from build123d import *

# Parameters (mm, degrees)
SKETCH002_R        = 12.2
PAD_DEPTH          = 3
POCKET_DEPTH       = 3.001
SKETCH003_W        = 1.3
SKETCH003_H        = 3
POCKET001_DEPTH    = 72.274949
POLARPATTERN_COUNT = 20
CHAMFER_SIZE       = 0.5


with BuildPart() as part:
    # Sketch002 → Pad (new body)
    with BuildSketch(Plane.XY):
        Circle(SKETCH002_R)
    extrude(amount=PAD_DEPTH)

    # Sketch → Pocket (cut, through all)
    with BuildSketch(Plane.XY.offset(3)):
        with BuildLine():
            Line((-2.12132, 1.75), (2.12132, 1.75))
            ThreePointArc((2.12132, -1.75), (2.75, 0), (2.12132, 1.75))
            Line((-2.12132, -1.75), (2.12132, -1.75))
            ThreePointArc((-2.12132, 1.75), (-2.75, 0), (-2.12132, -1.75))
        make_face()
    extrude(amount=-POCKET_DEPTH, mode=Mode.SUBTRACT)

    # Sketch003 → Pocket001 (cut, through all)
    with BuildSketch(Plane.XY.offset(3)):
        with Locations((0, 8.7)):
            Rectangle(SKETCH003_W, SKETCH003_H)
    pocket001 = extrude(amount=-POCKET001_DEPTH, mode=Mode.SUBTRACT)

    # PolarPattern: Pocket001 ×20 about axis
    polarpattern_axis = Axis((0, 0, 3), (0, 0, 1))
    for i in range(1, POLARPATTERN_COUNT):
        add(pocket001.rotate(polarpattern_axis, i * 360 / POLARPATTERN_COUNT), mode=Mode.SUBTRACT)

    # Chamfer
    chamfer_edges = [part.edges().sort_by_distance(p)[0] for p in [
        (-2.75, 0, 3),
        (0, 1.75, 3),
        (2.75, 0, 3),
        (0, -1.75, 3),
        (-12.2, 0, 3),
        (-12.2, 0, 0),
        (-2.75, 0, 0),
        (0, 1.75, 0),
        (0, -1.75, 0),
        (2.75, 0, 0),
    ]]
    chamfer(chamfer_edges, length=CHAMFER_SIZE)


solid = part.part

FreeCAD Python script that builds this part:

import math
import FreeCAD as App
import Part
import Sketcher

V = App.Vector


def edges_at(feature, points):
    """Names of the edges that pass closest to the given points."""
    edges = feature.Shape.Edges
    near = lambda p: min(range(len(edges)), key=lambda i: edges[i].distToShape(Part.Vertex(*p))[0])
    return sorted({f"Edge{near(p) + 1}" for p in points})


def add_polygon(sketch, points):
    """Adds a closed chain of lines whose ends are joined by coincident constraints."""
    first, n = sketch.GeometryCount, len(points)
    for a, b in zip(points, points[1:] + points[:1]):
        sketch.addGeometry(Part.LineSegment(App.Vector(*a, 0), App.Vector(*b, 0)), False)
    for i in range(n):
        sketch.addConstraint(Sketcher.Constraint("Coincident", first + i, 2, first + (i + 1) % n, 1))

doc = App.newDocument("Part")
body = doc.addObject("PartDesign::Body", "Body")

# Sketch on XY plane
sketch1 = doc.addObject("Sketcher::SketchObject", "Sketch")
body.addObject(sketch1)
sketch1.AttachmentSupport = (doc.XY_Plane, [""])
sketch1.MapMode = "FlatFace"
sketch1.addGeometry(Part.Circle(V(0, 0, 0), V(0, 0, 1), 12), False)
sketch1.addConstraint(Sketcher.Constraint("Coincident", 0, 3, -1, 1))
sketch1.addConstraint(Sketcher.Constraint("Diameter", 0, 24.4))
pad1 = doc.addObject("PartDesign::Pad", "Pad")
body.addObject(pad1)
pad1.Profile = sketch1
pad1.Length = 3

# Sketch on XY plane
sketch2 = doc.addObject("Sketcher::SketchObject", "Sketch001")
body.addObject(sketch2)
sketch2.AttachmentSupport = (doc.XY_Plane, [""])
sketch2.MapMode = "FlatFace"
sketch2.AttachmentOffset = App.Placement(V(0, 0, 3), App.Rotation())
sketch2.addGeometry(Part.LineSegment(V(2.1, 1.8, 0), V(-2.1, 1.8, 0)), False)
sketch2.addGeometry(Part.ArcOfCircle(Part.Circle(V(0, 0, 0), V(0, 0, 1), 2.7), math.radians(140), math.radians(220)), False)
sketch2.addGeometry(Part.LineSegment(V(-2.1, -1.8, 0), V(2.1, -1.8, 0)), False)
sketch2.addGeometry(Part.ArcOfCircle(Part.Circle(V(0, 0, 0), V(0, 0, 1), 2.7), math.radians(-40), math.radians(40)), False)
sketch2.addConstraint(Sketcher.Constraint("Coincident", 0, 2, 1, 1))
sketch2.addConstraint(Sketcher.Constraint("Coincident", 1, 2, 2, 1))
sketch2.addConstraint(Sketcher.Constraint("Coincident", 2, 2, 3, 1))
sketch2.addConstraint(Sketcher.Constraint("Coincident", 3, 2, 0, 1))
sketch2.addConstraint(Sketcher.Constraint("Horizontal", 0))
sketch2.addConstraint(Sketcher.Constraint("Horizontal", 2))
sketch2.addConstraint(Sketcher.Constraint("Coincident", 1, 3, -1, 1))
sketch2.addConstraint(Sketcher.Constraint("Coincident", 3, 3, -1, 1))
sketch2.addConstraint(Sketcher.Constraint("Equal", 1, 3))
sketch2.addConstraint(Sketcher.Constraint("Vertical", 0, 2, 1, 2))
sketch2.addConstraint(Sketcher.Constraint("Radius", 1, 2.749999))
sketch2.addConstraint(Sketcher.Constraint("DistanceY", 1, 2, 0, 2, 3.5))
pocket1 = doc.addObject("PartDesign::Pocket", "Pocket")
body.addObject(pocket1)
pocket1.Profile = sketch2
pocket1.Type = "ThroughAll"

# Sketch on XY plane
sketch3 = doc.addObject("Sketcher::SketchObject", "Sketch002")
body.addObject(sketch3)
sketch3.AttachmentSupport = (doc.XY_Plane, [""])
sketch3.MapMode = "FlatFace"
sketch3.AttachmentOffset = App.Placement(V(0, 0, 3), App.Rotation())
add_polygon(sketch3, [(-0.7, 10.2), (-0.7, 7.2), (0.7, 7.2), (0.7, 10.2)])  # lines 0-3
sketch3.addConstraint(Sketcher.Constraint("Vertical", 0))
sketch3.addConstraint(Sketcher.Constraint("Horizontal", 1))
sketch3.addConstraint(Sketcher.Constraint("Vertical", 2))
sketch3.addConstraint(Sketcher.Constraint("Horizontal", 3))
sketch3.addConstraint(Sketcher.Constraint("DistanceY", 0, 2, 0, 1, 3.0))
sketch3.addConstraint(Sketcher.Constraint("DistanceX", 1, 1, 1, 2, 1.3))
sketch3.addConstraint(Sketcher.Constraint("DistanceY", -1, 1, 0, 2, 7.2))
sketch3.addConstraint(Sketcher.Constraint("DistanceX", 0, 2, -1, 1, 0.65))
pocket2 = doc.addObject("PartDesign::Pocket", "Pocket001")
body.addObject(pocket2)
pocket2.Profile = sketch3
pocket2.Type = "ThroughAll"
doc.recompute()

polarpattern = doc.addObject("PartDesign::PolarPattern", "PolarPattern")
body.addObject(polarpattern)
polarpattern.Originals = [pocket2]
polarpattern.Axis = (doc.Z_Axis, [""])
polarpattern.Angle = 360
polarpattern.Occurrences = 20
body.Tip = polarpattern
doc.recompute()

chamfer = doc.addObject("PartDesign::Chamfer", "Chamfer")
body.addObject(chamfer)
chamfer.Base = (polarpattern, edges_at(polarpattern, [
    (-2.75, 0, 3),
    (0, 1.75, 3),
    (2.75, 0, 3),
    (0, -1.75, 3),
    (-12.2, 0, 3),
    (-12.2, 0, 0),
    (-2.75, 0, 0),
    (0, 1.75, 0),
    (0, -1.75, 0),
    (2.75, 0, 0),
]))
chamfer.Size = 0.5

doc.recompute()
